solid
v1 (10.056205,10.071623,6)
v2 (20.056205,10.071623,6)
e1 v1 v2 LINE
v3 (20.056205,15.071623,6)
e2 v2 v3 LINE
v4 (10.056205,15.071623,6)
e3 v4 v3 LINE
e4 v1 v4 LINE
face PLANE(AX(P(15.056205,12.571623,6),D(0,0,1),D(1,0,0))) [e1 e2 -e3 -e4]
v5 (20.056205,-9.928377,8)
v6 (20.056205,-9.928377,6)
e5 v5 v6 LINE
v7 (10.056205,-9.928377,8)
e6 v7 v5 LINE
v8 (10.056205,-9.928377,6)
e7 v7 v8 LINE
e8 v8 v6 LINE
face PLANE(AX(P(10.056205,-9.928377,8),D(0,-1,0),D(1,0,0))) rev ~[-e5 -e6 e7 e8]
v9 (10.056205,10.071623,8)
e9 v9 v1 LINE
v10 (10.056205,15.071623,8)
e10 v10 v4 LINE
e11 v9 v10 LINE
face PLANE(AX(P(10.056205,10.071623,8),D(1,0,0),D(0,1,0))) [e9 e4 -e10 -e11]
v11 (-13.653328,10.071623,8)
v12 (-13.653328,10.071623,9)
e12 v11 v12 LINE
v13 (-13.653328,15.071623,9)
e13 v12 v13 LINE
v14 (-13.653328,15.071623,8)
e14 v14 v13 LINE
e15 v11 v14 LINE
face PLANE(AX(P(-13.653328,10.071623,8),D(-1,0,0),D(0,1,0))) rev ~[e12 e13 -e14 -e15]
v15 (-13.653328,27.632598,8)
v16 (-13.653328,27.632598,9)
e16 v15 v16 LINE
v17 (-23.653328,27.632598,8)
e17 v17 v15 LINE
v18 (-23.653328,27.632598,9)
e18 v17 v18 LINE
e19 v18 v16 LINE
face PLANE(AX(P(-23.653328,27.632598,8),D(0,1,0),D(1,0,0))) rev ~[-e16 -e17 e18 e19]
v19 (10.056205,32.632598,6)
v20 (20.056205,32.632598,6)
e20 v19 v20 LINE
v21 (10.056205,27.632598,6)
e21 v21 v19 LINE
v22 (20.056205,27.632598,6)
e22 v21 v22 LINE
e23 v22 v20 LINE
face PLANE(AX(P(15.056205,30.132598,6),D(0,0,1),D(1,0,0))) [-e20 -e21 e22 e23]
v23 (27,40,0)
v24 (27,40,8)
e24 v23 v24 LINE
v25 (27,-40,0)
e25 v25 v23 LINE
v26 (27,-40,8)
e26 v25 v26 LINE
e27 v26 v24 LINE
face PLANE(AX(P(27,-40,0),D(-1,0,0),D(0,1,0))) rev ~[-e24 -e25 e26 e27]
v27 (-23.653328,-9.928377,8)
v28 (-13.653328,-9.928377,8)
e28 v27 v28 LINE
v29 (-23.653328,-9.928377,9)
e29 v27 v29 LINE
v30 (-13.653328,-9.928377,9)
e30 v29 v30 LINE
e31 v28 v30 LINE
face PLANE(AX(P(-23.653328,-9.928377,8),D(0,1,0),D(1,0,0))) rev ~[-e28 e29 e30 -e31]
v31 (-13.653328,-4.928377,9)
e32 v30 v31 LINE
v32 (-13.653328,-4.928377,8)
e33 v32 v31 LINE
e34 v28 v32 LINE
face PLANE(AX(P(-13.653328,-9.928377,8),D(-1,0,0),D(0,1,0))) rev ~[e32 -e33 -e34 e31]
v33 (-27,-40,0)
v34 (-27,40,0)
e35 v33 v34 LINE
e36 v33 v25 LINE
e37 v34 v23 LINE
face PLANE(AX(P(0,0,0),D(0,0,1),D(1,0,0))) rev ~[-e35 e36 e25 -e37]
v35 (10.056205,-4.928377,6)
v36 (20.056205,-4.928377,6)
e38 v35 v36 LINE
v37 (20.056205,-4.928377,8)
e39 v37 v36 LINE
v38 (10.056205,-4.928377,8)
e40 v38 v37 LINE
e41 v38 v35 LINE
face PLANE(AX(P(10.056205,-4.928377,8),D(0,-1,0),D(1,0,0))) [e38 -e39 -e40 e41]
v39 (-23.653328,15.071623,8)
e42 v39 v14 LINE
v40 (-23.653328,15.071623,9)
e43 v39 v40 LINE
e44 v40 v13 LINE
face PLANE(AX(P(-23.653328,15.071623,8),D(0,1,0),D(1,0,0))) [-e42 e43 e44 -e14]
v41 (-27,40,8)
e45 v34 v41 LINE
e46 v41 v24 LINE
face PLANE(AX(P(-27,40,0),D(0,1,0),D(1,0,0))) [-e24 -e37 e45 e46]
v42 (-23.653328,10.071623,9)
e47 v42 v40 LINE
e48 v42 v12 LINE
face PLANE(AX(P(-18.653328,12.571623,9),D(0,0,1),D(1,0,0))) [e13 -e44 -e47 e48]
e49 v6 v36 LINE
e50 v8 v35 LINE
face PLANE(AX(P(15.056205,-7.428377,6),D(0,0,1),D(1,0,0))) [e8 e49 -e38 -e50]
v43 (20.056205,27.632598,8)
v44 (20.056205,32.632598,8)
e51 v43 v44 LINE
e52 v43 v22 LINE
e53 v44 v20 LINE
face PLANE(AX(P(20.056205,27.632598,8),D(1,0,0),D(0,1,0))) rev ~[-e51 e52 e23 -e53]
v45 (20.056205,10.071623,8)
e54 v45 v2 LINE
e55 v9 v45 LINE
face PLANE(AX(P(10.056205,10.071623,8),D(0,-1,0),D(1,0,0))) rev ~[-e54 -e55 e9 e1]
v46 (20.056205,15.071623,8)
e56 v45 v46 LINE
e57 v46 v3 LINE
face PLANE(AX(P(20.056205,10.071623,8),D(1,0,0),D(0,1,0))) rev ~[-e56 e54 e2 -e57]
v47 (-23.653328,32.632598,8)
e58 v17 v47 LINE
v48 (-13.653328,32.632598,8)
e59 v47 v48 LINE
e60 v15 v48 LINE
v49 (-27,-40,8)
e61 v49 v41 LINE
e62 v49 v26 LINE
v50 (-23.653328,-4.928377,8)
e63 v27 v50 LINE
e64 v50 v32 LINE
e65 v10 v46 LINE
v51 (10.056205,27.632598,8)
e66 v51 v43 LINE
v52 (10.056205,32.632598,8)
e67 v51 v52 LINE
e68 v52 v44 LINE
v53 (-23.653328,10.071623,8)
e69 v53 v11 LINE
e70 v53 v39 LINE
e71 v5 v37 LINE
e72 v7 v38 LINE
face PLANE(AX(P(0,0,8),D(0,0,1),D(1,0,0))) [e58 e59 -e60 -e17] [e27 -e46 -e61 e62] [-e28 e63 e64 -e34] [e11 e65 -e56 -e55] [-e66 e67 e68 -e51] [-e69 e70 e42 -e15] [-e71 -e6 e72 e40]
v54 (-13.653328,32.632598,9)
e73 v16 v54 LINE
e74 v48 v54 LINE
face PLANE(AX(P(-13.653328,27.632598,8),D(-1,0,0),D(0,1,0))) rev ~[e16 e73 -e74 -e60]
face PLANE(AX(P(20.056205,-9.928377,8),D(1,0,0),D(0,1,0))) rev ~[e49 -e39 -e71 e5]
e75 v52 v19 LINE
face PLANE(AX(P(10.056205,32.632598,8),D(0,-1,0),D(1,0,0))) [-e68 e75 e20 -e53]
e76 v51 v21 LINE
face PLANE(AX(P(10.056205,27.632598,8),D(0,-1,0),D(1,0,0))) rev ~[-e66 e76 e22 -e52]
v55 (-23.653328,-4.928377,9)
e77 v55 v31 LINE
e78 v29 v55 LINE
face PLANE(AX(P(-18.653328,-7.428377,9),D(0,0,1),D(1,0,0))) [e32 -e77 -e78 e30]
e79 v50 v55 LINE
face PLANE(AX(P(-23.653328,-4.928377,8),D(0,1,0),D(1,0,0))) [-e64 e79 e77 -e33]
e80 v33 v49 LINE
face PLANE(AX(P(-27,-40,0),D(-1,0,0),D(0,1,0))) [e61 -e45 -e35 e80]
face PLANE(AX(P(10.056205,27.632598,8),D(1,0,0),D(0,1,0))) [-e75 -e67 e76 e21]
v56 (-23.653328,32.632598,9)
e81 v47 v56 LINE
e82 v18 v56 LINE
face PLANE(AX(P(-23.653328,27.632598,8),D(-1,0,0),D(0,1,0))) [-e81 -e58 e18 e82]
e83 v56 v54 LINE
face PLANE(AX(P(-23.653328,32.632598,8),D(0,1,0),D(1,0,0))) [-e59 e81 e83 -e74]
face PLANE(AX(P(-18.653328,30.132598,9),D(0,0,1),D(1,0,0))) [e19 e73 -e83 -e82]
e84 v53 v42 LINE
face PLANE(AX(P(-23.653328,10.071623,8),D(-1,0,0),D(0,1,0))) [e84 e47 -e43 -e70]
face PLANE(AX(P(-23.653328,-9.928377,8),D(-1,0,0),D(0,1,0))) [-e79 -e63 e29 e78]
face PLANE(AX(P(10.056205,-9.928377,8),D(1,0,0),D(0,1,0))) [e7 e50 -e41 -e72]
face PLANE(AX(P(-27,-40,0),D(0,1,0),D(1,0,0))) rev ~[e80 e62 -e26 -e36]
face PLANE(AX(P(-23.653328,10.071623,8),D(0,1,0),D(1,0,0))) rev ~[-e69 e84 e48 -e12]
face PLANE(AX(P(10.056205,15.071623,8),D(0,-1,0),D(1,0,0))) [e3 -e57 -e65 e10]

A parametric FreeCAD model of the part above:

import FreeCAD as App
import Part
import Sketcher
from FreeCAD import Vector


def add_polygon(sketch, points):
    """Adds a closed chain of lines whose ends are joined by coincident constraints."""
    first, n = sketch.GeometryCount, len(points)
    for a, b in zip(points, points[1:] + points[:1]):
        sketch.addGeometry(Part.LineSegment(App.Vector(*a, 0), App.Vector(*b, 0)), False)
    for i in range(n):
        sketch.addConstraint(Sketcher.Constraint("Coincident", first + i, 2, first + (i + 1) % n, 1))

doc = App.newDocument("Part")
body = doc.addObject("PartDesign::Body", "Body")

# Sketch on XY plane
sketch1 = doc.addObject("Sketcher::SketchObject", "Sketch")
body.addObject(sketch1)
sketch1.AttachmentSupport = (doc.XY_Plane, [""])
sketch1.MapMode = "FlatFace"
add_polygon(sketch1, [(-27, 40), (-27, -40), (27, -40), (27, 40)])  # lines 0-3
sketch1.addConstraint([
    Sketcher.Constraint("Vertical", 0),
    Sketcher.Constraint("Horizontal", 1),
    Sketcher.Constraint("Vertical", 2),
    Sketcher.Constraint("Horizontal", 3),
    Sketcher.Constraint("Symmetric", 0, 2, 2, 2, -1, 1),
    Sketcher.Constraint("DistanceX", 1, 1, 1, 2, 54.0),
    Sketcher.Constraint("DistanceY", 0, 2, 0, 1, 80.0),
])
pad1 = doc.addObject("PartDesign::Pad", "Pad")
body.addObject(pad1)
pad1.Profile = sketch1
pad1.Length = 8

# Sketch on XY plane
sketch2 = doc.addObject("Sketcher::SketchObject", "Sketch001")
body.addObject(sketch2)
sketch2.AttachmentSupport = (doc.XY_Plane, [""])
sketch2.MapMode = "FlatFace"
sketch2.AttachmentOffset = App.Placement(Vector(0, 0, 8), App.Rotation())
add_polygon(sketch2, [(-23.653328, 32.632598), (-23.653328, 27.632598), (-13.653328, 27.632598), (-13.653328, 32.632598)])  # lines 0-3
add_polygon(sketch2, [(-23.653328, 15.071623), (-23.653328, 10.071623), (-13.653328, 10.071623), (-13.653328, 15.071623)])  # lines 4-7
add_polygon(sketch2, [(-23.653328, -4.928377), (-23.653328, -9.928377), (-13.653328, -9.928377), (-13.653328, -4.928377)])  # lines 8-11
sketch2.addConstraint([
    Sketcher.Constraint("Vertical", 0),
    Sketcher.Constraint("Horizontal", 1),
    Sketcher.Constraint("Vertical", 2),
    Sketcher.Constraint("Horizontal", 3),
    Sketcher.Constraint("Vertical", 4),
    Sketcher.Constraint("Horizontal", 5),
    Sketcher.Constraint("Vertical", 6),
    Sketcher.Constraint("Horizontal", 7),
    Sketcher.Constraint("Vertical", 8),
    Sketcher.Constraint("Horizontal", 9),
    Sketcher.Constraint("Vertical", 10),
    Sketcher.Constraint("Horizontal", 11),
    Sketcher.Constraint("Vertical", 3, 2, 4, 2),
    Sketcher.Constraint("Vertical", 2, 2, 5, 2),
    Sketcher.Constraint("Vertical", 7, 2, 8, 2),
    Sketcher.Constraint("Vertical", 6, 2, 9, 2),
    Sketcher.Constraint("Equal", 2, 4),
    Sketcher.Constraint("Equal", 6, 8),
    Sketcher.Constraint("DistanceX", 1, 1, 1, 2, 10.0),
    Sketcher.Constraint("DistanceY", 0, 2, 0, 1, 5.0),
    Sketcher.Constraint("DistanceY", 8, 2, 4, 2, 20.0),
    Sketcher.Constraint("DistanceY", -1, 1, 0, 2, 27.632598),
    Sketcher.Constraint("DistanceX", 0, 2, -1, 1, 23.653328),
    Sketcher.Constraint("DistanceY", -1, 1, 4, 2, 10.071623),
])
pad2 = doc.addObject("PartDesign::Pad", "Pad001")
body.addObject(pad2)
pad2.Profile = sketch2
pad2.Length = 1

# Sketch on XY plane
sketch3 = doc.addObject("Sketcher::SketchObject", "Sketch002")
body.addObject(sketch3)
sketch3.AttachmentSupport = (doc.XY_Plane, [""])
sketch3.MapMode = "FlatFace"
sketch3.AttachmentOffset = App.Placement(Vector(0, 0, 8), App.Rotation())
add_polygon(sketch3, [(10.056205, 32.632598), (10.056205, 27.632598), (20.056205, 27.632598), (20.056205, 32.632598)])  # lines 0-3
add_polygon(sketch3, [(10.056205, 15.071623), (10.056205, 10.071623), (20.056205, 10.071623), (20.056205, 15.071623)])  # lines 4-7
add_polygon(sketch3, [(10.056205, -4.928377), (10.056205, -9.928377), (20.056205, -9.928377), (20.056205, -4.928377)])  # lines 8-11
sketch3.addConstraint([
    Sketcher.Constraint("Vertical", 0),
    Sketcher.Constraint("Horizontal", 1),
    Sketcher.Constraint("Vertical", 2),
    Sketcher.Constraint("Horizontal", 3),
    Sketcher.Constraint("Vertical", 4),
    Sketcher.Constraint("Horizontal", 5),
    Sketcher.Constraint("Vertical", 6),
    Sketcher.Constraint("Horizontal", 7),
    Sketcher.Constraint("Vertical", 8),
    Sketcher.Constraint("Horizontal", 9),
    Sketcher.Constraint("Vertical", 10),
    Sketcher.Constraint("Horizontal", 11),
    Sketcher.Constraint("Vertical", 3, 2, 4, 2),
    Sketcher.Constraint("Vertical", 2, 2, 5, 2),
    Sketcher.Constraint("Vertical", 7, 2, 8, 2),
    Sketcher.Constraint("Vertical", 6, 2, 9, 2),
    Sketcher.Constraint("Equal", 2, 4),
    Sketcher.Constraint("Equal", 6, 8),
    Sketcher.Constraint("DistanceX", 1, 1, 1, 2, 10.0),
    Sketcher.Constraint("DistanceY", 0, 2, 0, 1, 5.0),
    Sketcher.Constraint("DistanceY", 8, 2, 4, 2, 20.0),
    Sketcher.Constraint("DistanceY", -1, 1, 0, 2, 27.632598),
    Sketcher.Constraint("DistanceX", -1, 1, 0, 2, 10.056205),
    Sketcher.Constraint("DistanceY", -1, 1, 4, 2, 10.071623),
])
pocket1 = doc.addObject("PartDesign::Pocket", "Pocket")
body.addObject(pocket1)
pocket1.Profile = sketch3
pocket1.Length = 2

doc.recompute()
